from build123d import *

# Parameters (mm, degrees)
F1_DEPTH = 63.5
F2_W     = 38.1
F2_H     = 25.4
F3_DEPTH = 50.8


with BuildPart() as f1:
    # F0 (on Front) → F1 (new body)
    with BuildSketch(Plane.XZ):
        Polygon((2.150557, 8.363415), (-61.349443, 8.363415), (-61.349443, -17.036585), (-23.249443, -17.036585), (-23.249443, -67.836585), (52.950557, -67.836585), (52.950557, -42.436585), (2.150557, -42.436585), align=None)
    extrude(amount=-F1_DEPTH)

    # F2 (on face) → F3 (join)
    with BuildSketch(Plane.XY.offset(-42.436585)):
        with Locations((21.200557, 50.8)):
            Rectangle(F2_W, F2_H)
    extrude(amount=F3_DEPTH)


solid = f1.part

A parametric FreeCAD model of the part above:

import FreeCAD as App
import Part
import Sketcher

V = App.Vector
Q = App.Units.Quantity

doc = App.newDocument("Part")
body = doc.addObject("PartDesign::Body", "Body")

sketch1 = body.newObject("Sketcher::SketchObject", "Sketch")
sketch1.AttachmentSupport = (doc.getObject("XZ_Plane"), [""])
sketch1.MapMode = "FlatFace"
sketch1.addGeometry(Part.LineSegment(V(2.150557, 8.363415, 0), V(-61.349443, 8.363415, 0)), False)
sketch1.addGeometry(Part.LineSegment(V(-61.349443, 8.363415, 0), V(-61.349443, -17.036585, 0)), False)
sketch1.addGeometry(Part.LineSegment(V(-61.349443, -17.036585, 0), V(-23.249443, -17.036585, 0)), False)
sketch1.addGeometry(Part.LineSegment(V(-23.249443, -17.036585, 0), V(-23.249443, -67.836585, 0)), False)
sketch1.addGeometry(Part.LineSegment(V(-23.249443, -67.836585, 0), V(52.950557, -67.836585, 0)), False)
sketch1.addGeometry(Part.LineSegment(V(52.950557, -67.836585, 0), V(52.950557, -42.436585, 0)), False)
sketch1.addGeometry(Part.LineSegment(V(52.950557, -42.436585, 0), V(2.150557, -42.436585, 0)), False)
sketch1.addGeometry(Part.LineSegment(V(2.150557, -42.436585, 0), V(2.150557, 8.363415, 0)), False)
sketch1.addConstraint(Sketcher.Constraint("Coincident", 0, 2, 1, 1))
sketch1.addConstraint(Sketcher.Constraint("Coincident", 1, 2, 2, 1))
sketch1.addConstraint(Sketcher.Constraint("Coincident", 2, 2, 3, 1))
sketch1.addConstraint(Sketcher.Constraint("Coincident", 3, 2, 4, 1))
sketch1.addConstraint(Sketcher.Constraint("Coincident", 4, 2, 5, 1))
sketch1.addConstraint(Sketcher.Constraint("Coincident", 5, 2, 6, 1))
sketch1.addConstraint(Sketcher.Constraint("Coincident", 6, 2, 7, 1))
sketch1.addConstraint(Sketcher.Constraint("Coincident", 7, 2, 0, 1))
sketch1.addConstraint(Sketcher.Constraint("Horizontal", 0))
sketch1.addConstraint(Sketcher.Constraint("Vertical", 1))
sketch1.addConstraint(Sketcher.Constraint("Horizontal", 2))
sketch1.addConstraint(Sketcher.Constraint("Vertical", 3))
sketch1.addConstraint(Sketcher.Constraint("Horizontal", 4))
sketch1.addConstraint(Sketcher.Constraint("Vertical", 5))
sketch1.addConstraint(Sketcher.Constraint("Horizontal", 6))
sketch1.addConstraint(Sketcher.Constraint("Vertical", 7))
sketch1.addConstraint(Sketcher.Constraint("Equal", 6, 3))
sketch1.addConstraint(Sketcher.Constraint("Equal", 1, 5))
sketch1.addConstraint(Sketcher.Constraint("DistanceX", 4, 1, 4, 2, Q("3 in")))
sketch1.addConstraint(Sketcher.Constraint("DistanceX", 6, 2, 6, 1, Q("2 in")))
sketch1.addConstraint(Sketcher.Constraint("DistanceY", 1, 2, 1, 1, Q("1 in")))
sketch1.addConstraint(Sketcher.Constraint("DistanceX", 0, 2, 0, 1, Q("2.5 in")))
sketch1.addConstraint(Sketcher.Constraint("DistanceX", 0, 2, -1, 1, 61.349443))
sketch1.addConstraint(Sketcher.Constraint("DistanceY", -1, 1, 0, 2, 8.363415))
pad1 = body.newObject("PartDesign::Pad", "Pad")
pad1.Profile = sketch1
pad1.Length = Q("2.5 in")
pad1.Reversed = True

sketch2 = body.newObject("Sketcher::SketchObject", "Sketch001")
sketch2.AttachmentSupport = (doc.getObject("XY_Plane"), [""])
sketch2.MapMode = "FlatFace"
sketch2.AttachmentOffset = App.Placement(V(0, 0, -42.436585), App.Rotation())
sketch2.addGeometry(Part.LineSegment(V(2.150557, 63.5, 0), V(2.150557, 38.1, 0)), False)
sketch2.addGeometry(Part.LineSegment(V(2.150557, 38.1, 0), V(40.250557, 38.1, 0)), False)
sketch2.addGeometry(Part.LineSegment(V(40.250557, 38.1, 0), V(40.250557, 63.5, 0)), False)
sketch2.addGeometry(Part.LineSegment(V(40.250557, 63.5, 0), V(2.150557, 63.5, 0)), False)
sketch2.addConstraint(Sketcher.Constraint("Coincident", 0, 2, 1, 1))
sketch2.addConstraint(Sketcher.Constraint("Coincident", 1, 2, 2, 1))
sketch2.addConstraint(Sketcher.Constraint("Coincident", 2, 2, 3, 1))
sketch2.addConstraint(Sketcher.Constraint("Coincident", 3, 2, 0, 1))
sketch2.addConstraint(Sketcher.Constraint("Vertical", 0))
sketch2.addConstraint(Sketcher.Constraint("Horizontal", 1))
sketch2.addConstraint(Sketcher.Constraint("Vertical", 2))
sketch2.addConstraint(Sketcher.Constraint("Horizontal", 3))
sketch2.addConstraint(Sketcher.Constraint("DistanceY", 0, 2, 0, 1, Q("1 in")))
sketch2.addConstraint(Sketcher.Constraint("DistanceX", 1, 1, 1, 2, Q("1.5 in")))
sketch2.addConstraint(Sketcher.Constraint("DistanceY", -1, 1, 0, 2, Q("1.5 in")))
sketch2.addConstraint(Sketcher.Constraint("DistanceX", -1, 1, 0, 2, 2.150557))
pad2 = body.newObject("PartDesign::Pad", "Pad001")
pad2.Profile = sketch2
pad2.Length = Q("2 in")

doc.recompute()
